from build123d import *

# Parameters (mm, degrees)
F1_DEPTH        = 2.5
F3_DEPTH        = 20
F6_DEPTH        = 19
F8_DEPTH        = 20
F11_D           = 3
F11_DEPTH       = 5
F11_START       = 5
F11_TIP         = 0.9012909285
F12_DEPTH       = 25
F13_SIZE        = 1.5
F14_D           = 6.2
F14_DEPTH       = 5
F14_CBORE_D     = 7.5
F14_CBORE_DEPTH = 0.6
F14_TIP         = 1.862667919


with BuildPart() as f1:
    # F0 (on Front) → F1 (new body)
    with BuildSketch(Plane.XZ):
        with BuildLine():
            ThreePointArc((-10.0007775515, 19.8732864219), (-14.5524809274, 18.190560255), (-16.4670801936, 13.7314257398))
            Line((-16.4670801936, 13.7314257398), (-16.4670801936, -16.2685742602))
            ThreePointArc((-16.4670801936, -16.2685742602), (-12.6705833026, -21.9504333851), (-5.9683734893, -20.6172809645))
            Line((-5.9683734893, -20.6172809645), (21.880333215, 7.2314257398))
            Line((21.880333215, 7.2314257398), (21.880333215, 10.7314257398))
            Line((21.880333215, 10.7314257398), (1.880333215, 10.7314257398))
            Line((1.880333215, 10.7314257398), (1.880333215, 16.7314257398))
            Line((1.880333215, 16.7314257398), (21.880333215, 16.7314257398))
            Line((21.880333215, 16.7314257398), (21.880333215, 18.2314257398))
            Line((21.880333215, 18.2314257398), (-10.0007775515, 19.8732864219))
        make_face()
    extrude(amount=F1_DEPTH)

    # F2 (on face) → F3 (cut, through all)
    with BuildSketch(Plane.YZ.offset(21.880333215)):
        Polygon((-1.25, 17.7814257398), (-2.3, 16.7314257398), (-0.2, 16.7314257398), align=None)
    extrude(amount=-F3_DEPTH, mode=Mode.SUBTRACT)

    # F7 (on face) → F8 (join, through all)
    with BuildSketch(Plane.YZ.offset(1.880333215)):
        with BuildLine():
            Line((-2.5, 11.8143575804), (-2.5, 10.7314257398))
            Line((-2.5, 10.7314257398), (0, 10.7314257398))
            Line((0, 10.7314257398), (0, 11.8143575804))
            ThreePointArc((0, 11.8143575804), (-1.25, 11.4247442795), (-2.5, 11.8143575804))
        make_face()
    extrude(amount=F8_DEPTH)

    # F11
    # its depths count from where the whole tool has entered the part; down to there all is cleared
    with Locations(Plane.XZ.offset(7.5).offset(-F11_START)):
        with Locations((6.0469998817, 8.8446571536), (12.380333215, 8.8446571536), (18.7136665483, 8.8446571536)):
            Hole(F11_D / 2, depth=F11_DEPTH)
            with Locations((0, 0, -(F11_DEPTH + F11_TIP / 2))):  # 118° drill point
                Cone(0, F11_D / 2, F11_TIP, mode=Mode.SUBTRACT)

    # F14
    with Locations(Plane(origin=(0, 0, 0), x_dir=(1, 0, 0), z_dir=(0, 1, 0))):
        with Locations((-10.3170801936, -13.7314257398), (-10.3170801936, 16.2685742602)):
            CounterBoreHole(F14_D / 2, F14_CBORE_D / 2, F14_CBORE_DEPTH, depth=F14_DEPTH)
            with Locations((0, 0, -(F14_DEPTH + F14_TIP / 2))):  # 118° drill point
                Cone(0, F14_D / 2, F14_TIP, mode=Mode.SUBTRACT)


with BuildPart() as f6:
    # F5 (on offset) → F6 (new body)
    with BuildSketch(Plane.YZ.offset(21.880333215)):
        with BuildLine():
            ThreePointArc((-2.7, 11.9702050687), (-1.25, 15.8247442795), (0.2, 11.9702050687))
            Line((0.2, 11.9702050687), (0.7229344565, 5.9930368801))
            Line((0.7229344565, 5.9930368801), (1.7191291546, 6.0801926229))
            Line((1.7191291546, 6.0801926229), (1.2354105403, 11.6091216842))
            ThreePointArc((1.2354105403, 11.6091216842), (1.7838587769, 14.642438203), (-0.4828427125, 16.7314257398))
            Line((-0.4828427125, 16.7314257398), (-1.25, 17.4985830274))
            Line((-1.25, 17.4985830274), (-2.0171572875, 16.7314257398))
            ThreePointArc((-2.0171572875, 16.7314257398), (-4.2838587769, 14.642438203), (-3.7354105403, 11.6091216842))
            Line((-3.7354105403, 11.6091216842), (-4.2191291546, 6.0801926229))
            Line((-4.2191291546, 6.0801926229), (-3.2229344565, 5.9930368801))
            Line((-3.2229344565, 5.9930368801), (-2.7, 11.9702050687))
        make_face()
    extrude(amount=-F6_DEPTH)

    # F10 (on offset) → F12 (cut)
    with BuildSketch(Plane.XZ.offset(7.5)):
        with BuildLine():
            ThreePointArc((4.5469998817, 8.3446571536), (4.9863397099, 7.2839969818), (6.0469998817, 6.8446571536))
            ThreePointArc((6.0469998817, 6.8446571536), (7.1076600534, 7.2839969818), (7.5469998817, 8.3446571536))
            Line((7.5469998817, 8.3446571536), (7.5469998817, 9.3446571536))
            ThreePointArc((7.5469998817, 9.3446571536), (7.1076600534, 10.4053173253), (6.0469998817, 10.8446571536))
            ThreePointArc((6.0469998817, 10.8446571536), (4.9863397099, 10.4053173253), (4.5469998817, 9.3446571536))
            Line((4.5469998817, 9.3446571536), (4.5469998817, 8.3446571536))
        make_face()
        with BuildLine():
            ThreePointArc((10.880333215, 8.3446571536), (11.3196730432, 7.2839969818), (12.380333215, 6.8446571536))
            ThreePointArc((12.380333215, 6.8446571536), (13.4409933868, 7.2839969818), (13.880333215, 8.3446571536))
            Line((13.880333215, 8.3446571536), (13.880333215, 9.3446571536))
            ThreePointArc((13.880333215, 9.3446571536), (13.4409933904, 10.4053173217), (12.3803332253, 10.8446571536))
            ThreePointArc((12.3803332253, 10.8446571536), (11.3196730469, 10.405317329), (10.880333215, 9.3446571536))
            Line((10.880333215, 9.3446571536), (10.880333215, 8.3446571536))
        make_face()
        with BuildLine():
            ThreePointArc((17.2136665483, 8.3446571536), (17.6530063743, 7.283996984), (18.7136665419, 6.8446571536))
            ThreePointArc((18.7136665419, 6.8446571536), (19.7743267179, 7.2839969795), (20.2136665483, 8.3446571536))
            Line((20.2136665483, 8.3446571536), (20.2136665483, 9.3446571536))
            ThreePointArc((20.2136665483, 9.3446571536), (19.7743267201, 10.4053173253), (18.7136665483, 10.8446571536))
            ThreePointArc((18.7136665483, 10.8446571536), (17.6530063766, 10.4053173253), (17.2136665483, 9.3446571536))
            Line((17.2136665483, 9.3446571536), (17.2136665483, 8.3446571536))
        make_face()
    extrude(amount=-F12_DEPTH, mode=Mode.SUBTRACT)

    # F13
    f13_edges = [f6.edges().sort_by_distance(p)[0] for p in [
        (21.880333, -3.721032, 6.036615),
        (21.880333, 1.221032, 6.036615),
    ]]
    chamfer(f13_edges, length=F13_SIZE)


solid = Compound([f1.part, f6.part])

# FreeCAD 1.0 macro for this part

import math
import FreeCAD as App
import Part
import Sketcher

V = App.Vector
Q = App.Units.Quantity


def edges_at(feature, points):
    """Names of the edges that pass closest to the given points."""
    edges = feature.Shape.Edges
    near = lambda p: min(range(len(edges)), key=lambda i: edges[i].distToShape(Part.Vertex(*p))[0])
    return sorted({f"Edge{near(p) + 1}" for p in points})

doc = App.newDocument("Part")
params = doc.addObject("Spreadsheet::Sheet", "Params")
for row, (alias, value) in enumerate([
    ("sketch1_width", "20 mm"),
    ("sketch1_height", "30 mm"),
    ("sketch1_height2", "6 mm"),
    ("sketch1_radius", "6.15 mm"),
    ("sketch1_height3", "3.5 mm"),
    ("pad1_length", "2.5 mm"),
    ("sketch2_width", "2.1 mm"),
    ("pocket1_length", "20 mm"),
    ("sketch3_radius", "2.2 mm"),
    ("sketch3_width", "2.5 mm"),
    ("pad2_length", "20 mm"),
    ("sketch4_diameter", "3 mm"),
    ("hole_diameter", "3 mm"),
    ("hole_depth", "5 mm"),
    ("sketch5_diameter", "6.2 mm"),
    ("hole2_diameter", "6.2 mm"),
    ("hole2_depth", "5 mm"),
    ("hole2_cbore_diameter", "7.5 mm"),
    ("hole2_cbore_depth", "0.6 mm"),
    ("sketch6_radius", "2.2 mm"),
    ("sketch6_radius2", "3.2 mm"),
    ("sketch6_length", "6 mm"),
    ("sketch6_length2", "1 mm"),
    ("pad3_length", "19 mm"),
    ("sketch7_radius", "1.5 mm"),
    ("sketch7_height", "1 mm"),
    ("pocket2_length", "25 mm"),
    ("chamfer_size", "1.5 mm"),
], start=1):
    params.set(f"A{row}", alias)
    params.set(f"B{row}", "=" + value)
    params.setAlias(f"B{row}", alias)

body = doc.addObject("PartDesign::Body", "Body")

# Sketch on XZ plane
sketch1 = body.newObject("Sketcher::SketchObject", "Sketch")
sketch1.AttachmentSupport = (doc.getObject("XZ_Plane"), [""])
sketch1.MapMode = "FlatFace"
sketch1.addGeometry(Part.ArcOfCircle(Part.Circle(V(-10.31708, 13.731426, 0), V(0, 0, 1), 6.15), math.radians(87.051902), math.radians(180)), False)
sketch1.addGeometry(Part.LineSegment(V(-16.46708, 13.731426, 0), V(-16.46708, -16.268574, 0)), False)
sketch1.addGeometry(Part.ArcOfCircle(Part.Circle(V(-10.31708, -16.268574, 0), V(0, 0, 1), 6.15), math.radians(180), math.radians(315)), False)
sketch1.addGeometry(Part.LineSegment(V(-5.968373, -20.617281, 0), V(21.880333, 7.231426, 0)), False)
sketch1.addGeometry(Part.LineSegment(V(21.880333, 7.231426, 0), V(21.880333, 10.731426, 0)), False)
sketch1.addGeometry(Part.LineSegment(V(21.880333, 10.731426, 0), V(1.880333, 10.731426, 0)), False)
sketch1.addGeometry(Part.LineSegment(V(1.880333, 10.731426, 0), V(1.880333, 16.731426, 0)), False)
sketch1.addGeometry(Part.LineSegment(V(1.880333, 16.731426, 0), V(21.880333, 16.731426, 0)), False)
sketch1.addGeometry(Part.LineSegment(V(21.880333, 16.731426, 0), V(21.880333, 18.231426, 0)), False)
sketch1.addGeometry(Part.LineSegment(V(21.880333, 18.231426, 0), V(-10.000778, 19.873286, 0)), False)
sketch1.addConstraint(Sketcher.Constraint("Tangent", 0, 2, 1, 1))
sketch1.addConstraint(Sketcher.Constraint("Tangent", 1, 2, 2, 1))
sketch1.addConstraint(Sketcher.Constraint("Tangent", 2, 2, 3, 1))
sketch1.addConstraint(Sketcher.Constraint("Coincident", 3, 2, 4, 1))
sketch1.addConstraint(Sketcher.Constraint("Coincident", 4, 2, 5, 1))
sketch1.addConstraint(Sketcher.Constraint("Coincident", 5, 2, 6, 1))
sketch1.addConstraint(Sketcher.Constraint("Coincident", 6, 2, 7, 1))
sketch1.addConstraint(Sketcher.Constraint("Coincident", 7, 2, 8, 1))
sketch1.addConstraint(Sketcher.Constraint("Coincident", 8, 2, 9, 1))
sketch1.addConstraint(Sketcher.Constraint("Tangent", 9, 2, 0, 1))
sketch1.addConstraint(Sketcher.Constraint("Vertical", 1))
sketch1.addConstraint(Sketcher.Constraint("Vertical", 4))
sketch1.addConstraint(Sketcher.Constraint("Horizontal", 5))
sketch1.addConstraint(Sketcher.Constraint("Vertical", 6))
sketch1.addConstraint(Sketcher.Constraint("Horizontal", 7))
sketch1.addConstraint(Sketcher.Constraint("Vertical", 8))
sketch1.addConstraint(Sketcher.Constraint("Equal", 0, 2))
sketch1.addConstraint(Sketcher.Constraint("Vertical", 4, 2, 7, 2))
sketch1.addConstraint(Sketcher.Constraint("DistanceX", 5, 2, 5, 1, Q("20 mm")))
sketch1.addConstraint(Sketcher.Constraint("DistanceY", 1, 2, 1, 1, Q("30 mm")))
sketch1.addConstraint(Sketcher.Constraint("DistanceY", 6, 1, 6, 2, Q("6 mm")))
sketch1.addConstraint(Sketcher.Constraint("Angle", 3, Q("45 deg")))
sketch1.addConstraint(Sketcher.Constraint("Radius", 0, Q("6.15 mm")))
sketch1.addConstraint(Sketcher.Constraint("DistanceY", 4, 1, 4, 2, Q("3.5 mm")))
sketch1.addConstraint(Sketcher.Constraint("DistanceY", 8, 1, 8, 2, Q("1.5 mm")))
sketch1.addConstraint(Sketcher.Constraint("DistanceY", 4, 2, 0, 3, Q("3 mm")))
sketch1.addConstraint(Sketcher.Constraint("DistanceX", 0, 3, -1, 1, Q("10.31708 mm")))
sketch1.addConstraint(Sketcher.Constraint("DistanceY", 2, 2, -1, 1, Q("20.617281 mm")))
sketch1.setExpression("Constraints[18]", "Params.sketch1_width")
sketch1.setExpression("Constraints[19]", "Params.sketch1_height")
sketch1.setExpression("Constraints[20]", "Params.sketch1_height2")
sketch1.setExpression("Constraints[22]", "Params.sketch1_radius")
sketch1.setExpression("Constraints[23]", "Params.sketch1_height3")
pad1 = body.newObject("PartDesign::Pad", "Pad")
pad1.Profile = sketch1
pad1.setExpression("Length", "Params.pad1_length")

# Sketch on YZ plane
sketch2 = body.newObject("Sketcher::SketchObject", "Sketch001")
sketch2.AttachmentSupport = (doc.getObject("YZ_Plane"), [""])
sketch2.MapMode = "FlatFace"
sketch2.AttachmentOffset = App.Placement(V(0, 0, 21.880333), App.Rotation())
sketch2.addGeometry(Part.LineSegment(V(-1.25, 17.781426, 0), V(-2.3, 16.731426, 0)), False)
sketch2.addGeometry(Part.LineSegment(V(-2.3, 16.731426, 0), V(-0.2, 16.731426, 0)), False)
sketch2.addGeometry(Part.LineSegment(V(-0.2, 16.731426, 0), V(-1.25, 17.781426, 0)), False)
sketch2.addConstraint(Sketcher.Constraint("Coincident", 0, 2, 1, 1))
sketch2.addConstraint(Sketcher.Constraint("Coincident", 1, 2, 2, 1))
sketch2.addConstraint(Sketcher.Constraint("Coincident", 2, 2, 0, 1))
sketch2.addConstraint(Sketcher.Constraint("Horizontal", 1))
sketch2.addConstraint(Sketcher.Constraint("Perpendicular", 0, 2))
sketch2.addConstraint(Sketcher.Constraint("Equal", 0, 2))
sketch2.addConstraint(Sketcher.Constraint("DistanceX", 1, 1, 1, 2, Q("2.1 mm")))
sketch2.addConstraint(Sketcher.Constraint("DistanceX", 0, 2, -1, 1, Q("2.3 mm")))
sketch2.addConstraint(Sketcher.Constraint("DistanceY", -1, 1, 0, 2, Q("16.731426 mm")))
sketch2.setExpression("Constraints[6]", "Params.sketch2_width")
pocket1 = body.newObject("PartDesign::Pocket", "Pocket")
pocket1.Profile = sketch2
pocket1.setExpression("Length", "Params.pocket1_length")

# Sketch on YZ plane
sketch3 = body.newObject("Sketcher::SketchObject", "Sketch002")
sketch3.AttachmentSupport = (doc.getObject("YZ_Plane"), [""])
sketch3.MapMode = "FlatFace"
sketch3.AttachmentOffset = App.Placement(V(0, 0, 1.880333), App.Rotation())
sketch3.addGeometry(Part.LineSegment(V(-2.5, 11.814358, 0), V(-2.5, 10.731426, 0)), False)
sketch3.addGeometry(Part.LineSegment(V(-2.5, 10.731426, 0), V(0, 10.731426, 0)), False)
sketch3.addGeometry(Part.LineSegment(V(0, 10.731426, 0), V(0, 11.814358, 0)), False)
sketch3.addGeometry(Part.ArcOfCircle(Part.Circle(V(-1.25, 13.624744, 0), V(0, 0, 1), 2.2), math.radians(-124.623535), math.radians(-55.376465)), False)
sketch3.addConstraint(Sketcher.Constraint("Coincident", 0, 2, 1, 1))
sketch3.addConstraint(Sketcher.Constraint("Coincident", 1, 2, 2, 1))
sketch3.addConstraint(Sketcher.Constraint("Coincident", 2, 2, 3, 2))
sketch3.addConstraint(Sketcher.Constraint("Coincident", 3, 1, 0, 1))
sketch3.addConstraint(Sketcher.Constraint("Vertical", 0))
sketch3.addConstraint(Sketcher.Constraint("Horizontal", 1))
sketch3.addConstraint(Sketcher.Constraint("Vertical", 2))
sketch3.addConstraint(Sketcher.Constraint("PointOnObject", 1, 2, -2))
sketch3.addConstraint(Sketcher.Constraint("Horizontal", 2, 2, 3, 1))
sketch3.addConstraint(Sketcher.Constraint("Radius", 3, Q("2.2 mm")))
sketch3.addConstraint(Sketcher.Constraint("DistanceX", 1, 1, 1, 2, Q("2.5 mm")))
sketch3.addConstraint(Sketcher.Constraint("DistanceY", 0, 2, 0, 1, Q("1.082932 mm")))
sketch3.addConstraint(Sketcher.Constraint("DistanceY", -1, 1, 3, 3, Q("13.624744 mm")))
sketch3.setExpression("Constraints[9]", "Params.sketch3_radius")
sketch3.setExpression("Constraints[10]", "Params.sketch3_width")
pad2 = body.newObject("PartDesign::Pad", "Pad001")
pad2.Profile = sketch3
pad2.setExpression("Length", "Params.pad2_length")

# Sketch on XZ plane
sketch4 = body.newObject("Sketcher::SketchObject", "Sketch003")
sketch4.AttachmentSupport = (doc.getObject("XZ_Plane"), [""])
sketch4.MapMode = "FlatFace"
sketch4.AttachmentOffset = App.Placement(V(0, 0, 2.5), App.Rotation())
sketch4.addGeometry(Part.Circle(V(6.047, 8.844657, 0), V(0, 0, 1), 1.5), False)
sketch4.addGeometry(Part.Circle(V(12.380333, 8.844657, 0), V(0, 0, 1), 1.5), False)
sketch4.addGeometry(Part.Circle(V(18.713667, 8.844657, 0), V(0, 0, 1), 1.5), False)
sketch4.addConstraint(Sketcher.Constraint("Equal", 0, 1))
sketch4.addConstraint(Sketcher.Constraint("Equal", 1, 2))
sketch4.addConstraint(Sketcher.Constraint("Horizontal", 0, 3, 1, 3))
sketch4.addConstraint(Sketcher.Constraint("Horizontal", 1, 3, 2, 3))
sketch4.addConstraint(Sketcher.Constraint("Diameter", 0, Q("3 mm")))
sketch4.addConstraint(Sketcher.Constraint("DistanceX", -1, 1, 0, 3, Q("6.047 mm")))
sketch4.addConstraint(Sketcher.Constraint("DistanceY", -1, 1, 0, 3, Q("8.844657 mm")))
sketch4.addConstraint(Sketcher.Constraint("DistanceX", -1, 1, 1, 3, Q("12.380333 mm")))
sketch4.addConstraint(Sketcher.Constraint("DistanceX", -1, 1, 2, 3, Q("18.713667 mm")))
sketch4.setExpression("Constraints[4]", "Params.sketch4_diameter")
doc.recompute()
hole = body.newObject("PartDesign::Hole", "Hole")
hole.Profile = sketch4
hole.ThreadType = "None"
hole.setExpression("Diameter", "Params.hole_diameter")
hole.DepthType = "Dimension"
hole.setExpression("Depth", "Params.hole_depth")
hole.DrillPoint = "Angled"
hole.DrillPointAngle = 118

# Sketch on XZ plane
sketch5 = body.newObject("Sketcher::SketchObject", "Sketch004")
sketch5.AttachmentSupport = (doc.getObject("XZ_Plane"), [""])
sketch5.MapMode = "FlatFace"
sketch5.addGeometry(Part.Circle(V(-10.31708, 13.731426, 0), V(0, 0, 1), 3.1), False)
sketch5.addGeometry(Part.Circle(V(-10.31708, -16.268574, 0), V(0, 0, 1), 3.1), False)
sketch5.addConstraint(Sketcher.Constraint("Equal", 0, 1))
sketch5.addConstraint(Sketcher.Constraint("Vertical", 0, 3, 1, 3))
sketch5.addConstraint(Sketcher.Constraint("Diameter", 0, Q("6.2 mm")))
sketch5.addConstraint(Sketcher.Constraint("DistanceY", 1, 3, 0, 3, Q("30 mm")))
sketch5.addConstraint(Sketcher.Constraint("DistanceX", 0, 3, -1, 1, Q("10.31708 mm")))
sketch5.addConstraint(Sketcher.Constraint("DistanceY", -1, 1, 0, 3, Q("13.731426 mm")))
sketch5.setExpression("Constraints[2]", "Params.sketch5_diameter")
doc.recompute()
hole2 = body.newObject("PartDesign::Hole", "Hole001")
hole2.Profile = sketch5
hole2.ThreadType = "None"
hole2.setExpression("Diameter", "Params.hole2_diameter")
hole2.DepthType = "Dimension"
hole2.setExpression("Depth", "Params.hole2_depth")
hole2.DrillPoint = "Angled"
hole2.DrillPointAngle = 118
hole2.HoleCutType = "Counterbore"
hole2.setExpression("HoleCutDiameter", "Params.hole2_cbore_diameter")
hole2.setExpression("HoleCutDepth", "Params.hole2_cbore_depth")
hole2.Reversed = True
body2 = doc.addObject("PartDesign::Body", "Body001")

# Sketch on YZ plane
sketch6 = body2.newObject("Sketcher::SketchObject", "Sketch005")
sketch6.AttachmentSupport = (doc.getObject("YZ_Plane001"), [""])
sketch6.MapMode = "FlatFace"
sketch6.AttachmentOffset = App.Placement(V(0, 0, 21.880333), App.Rotation())
sketch6.addGeometry(Part.ArcOfCircle(Part.Circle(V(-1.25, 13.624744, 0), V(0, 0, 1), 2.2), math.radians(-48.769423), math.radians(228.769423)), False)
sketch6.addGeometry(Part.LineSegment(V(0.2, 11.970205, 0), V(0.722934, 5.993037, 0)), False)
sketch6.addGeometry(Part.LineSegment(V(0.722934, 5.993037, 0), V(1.719129, 6.080193, 0)), False)
sketch6.addGeometry(Part.LineSegment(V(1.719129, 6.080193, 0), V(1.235411, 11.609122, 0)), False)
sketch6.addGeometry(Part.ArcOfCircle(Part.Circle(V(-1.25, 13.624744, 0), V(0, 0, 1), 3.2), math.radians(-39.041422), math.radians(76.129002)), False)
sketch6.addGeometry(Part.LineSegment(V(-0.482843, 16.731426, 0), V(-1.25, 17.498583, 0)), False)
sketch6.addGeometry(Part.LineSegment(V(-1.25, 17.498583, 0), V(-2.017157, 16.731426, 0)), False)
sketch6.addGeometry(Part.ArcOfCircle(Part.Circle(V(-1.25, 13.624744, 0), V(0, 0, 1), 3.2), math.radians(103.870998), math.radians(219.041422)), False)
sketch6.addGeometry(Part.LineSegment(V(-3.735411, 11.609122, 0), V(-4.219129, 6.080193, 0)), False)
sketch6.addGeometry(Part.LineSegment(V(-4.219129, 6.080193, 0), V(-3.222934, 5.993037, 0)), False)
sketch6.addGeometry(Part.LineSegment(V(-3.222934, 5.993037, 0), V(-2.7, 11.970205, 0)), False)
sketch6.addConstraint(Sketcher.Constraint("Coincident", 0, 1, 1, 1))
sketch6.addConstraint(Sketcher.Constraint("Coincident", 1, 2, 2, 1))
sketch6.addConstraint(Sketcher.Constraint("Coincident", 2, 2, 3, 1))
sketch6.addConstraint(Sketcher.Constraint("Coincident", 3, 2, 4, 1))
sketch6.addConstraint(Sketcher.Constraint("Coincident", 4, 2, 5, 1))
sketch6.addConstraint(Sketcher.Constraint("Coincident", 5, 2, 6, 1))
sketch6.addConstraint(Sketcher.Constraint("Coincident", 6, 2, 7, 1))
sketch6.addConstraint(Sketcher.Constraint("Coincident", 7, 2, 8, 1))
sketch6.addConstraint(Sketcher.Constraint("Coincident", 8, 2, 9, 1))
sketch6.addConstraint(Sketcher.Constraint("Coincident", 9, 2, 10, 1))
sketch6.addConstraint(Sketcher.Constraint("Coincident", 10, 2, 0, 2))
sketch6.addConstraint(Sketcher.Constraint("Coincident", 4, 3, 0, 3))
sketch6.addConstraint(Sketcher.Constraint("Coincident", 7, 3, 0, 3))
sketch6.addConstraint(Sketcher.Constraint("Equal", 4, 7))
sketch6.addConstraint(Sketcher.Constraint("Perpendicular", 1, 2))
sketch6.addConstraint(Sketcher.Constraint("Perpendicular", 2, 3))
sketch6.addConstraint(Sketcher.Constraint("Perpendicular", 5, 6))
sketch6.addConstraint(Sketcher.Constraint("Perpendicular", 8, 9))
sketch6.addConstraint(Sketcher.Constraint("Perpendicular", 9, 10))
sketch6.addConstraint(Sketcher.Constraint("Horizontal", 4, 2, 6, 2))
sketch6.addConstraint(Sketcher.Constraint("Horizontal", 3, 2, 7, 2))
sketch6.addConstraint(Sketcher.Constraint("Horizontal", 2, 2, 8, 2))
sketch6.addConstraint(Sketcher.Constraint("Horizontal", 1, 2, 9, 2))
sketch6.addConstraint(Sketcher.Constraint("Horizontal", 0, 1, 10, 2))
sketch6.addConstraint(Sketcher.Constraint("Vertical", 7, 3, 5, 2))
sketch6.addConstraint(Sketcher.Constraint("Radius", 0, Q("2.2 mm")))
sketch6.addConstraint(Sketcher.Constraint("Radius", 4, Q("3.2 mm")))
sketch6.addConstraint(Sketcher.Constraint("Angle", 1, Q("-85 deg")))
sketch6.addConstraint(Sketcher.Constraint("Distance", 1, Q("6 mm")))
sketch6.addConstraint(Sketcher.Constraint("Distance", 2, Q("1 mm")))
sketch6.addConstraint(Sketcher.Constraint("DistanceX", -1, 1, 0, 1, Q("0.2 mm")))
sketch6.addConstraint(Sketcher.Constraint("DistanceX", 10, 2, -1, 1, Q("2.7 mm")))
sketch6.addConstraint(Sketcher.Constraint("DistanceY", -1, 1, 3, 2, Q("11.609122 mm")))
sketch6.addConstraint(Sketcher.Constraint("DistanceY", 0, 3, 4, 2, Q("3.106681 mm")))
sketch6.setExpression("Constraints[25]", "Params.sketch6_radius")
sketch6.setExpression("Constraints[26]", "Params.sketch6_radius2")
sketch6.setExpression("Constraints[28]", "Params.sketch6_length")
sketch6.setExpression("Constraints[29]", "Params.sketch6_length2")
pad3 = body2.newObject("PartDesign::Pad", "Pad002")
pad3.Profile = sketch6
pad3.setExpression("Length", "Params.pad3_length")
pad3.Reversed = True

# Sketch on XZ plane
sketch7 = body2.newObject("Sketcher::SketchObject", "Sketch006")
sketch7.AttachmentSupport = (doc.getObject("XZ_Plane001"), [""])
sketch7.MapMode = "FlatFace"
sketch7.AttachmentOffset = App.Placement(V(0, 0, 7.5), App.Rotation())
sketch7.addGeometry(Part.ArcOfCircle(Part.Circle(V(6.047, 8.344657, 0), V(0, 0, 1), 1.5), math.radians(180), math.radians(270)), False)
sketch7.addGeometry(Part.ArcOfCircle(Part.Circle(V(6.047, 8.344657, 0), V(0, 0, 1), 1.5), math.radians(-90), math.radians(0)), False)
sketch7.addGeometry(Part.LineSegment(V(7.547, 8.344657, 0), V(7.547, 9.344657, 0)), False)
sketch7.addGeometry(Part.ArcOfCircle(Part.Circle(V(6.047, 9.344657, 0), V(0, 0, 1), 1.5), math.radians(0), math.radians(90)), False)
sketch7.addGeometry(Part.ArcOfCircle(Part.Circle(V(6.047, 9.344657, 0), V(0, 0, 1), 1.5), math.radians(90), math.radians(180)), False)
sketch7.addGeometry(Part.LineSegment(V(4.547, 9.344657, 0), V(4.547, 8.344657, 0)), False)
sketch7.addGeometry(Part.ArcOfCircle(Part.Circle(V(12.380333, 8.344657, 0), V(0, 0, 1), 1.5), math.radians(180), math.radians(270)), False)
sketch7.addGeometry(Part.ArcOfCircle(Part.Circle(V(12.380333, 8.344657, 0), V(0, 0, 1), 1.5), math.radians(-90), math.radians(0)), False)
sketch7.addGeometry(Part.LineSegment(V(13.880333, 8.344657, 0), V(13.880333, 9.344657, 0)), False)
sketch7.addGeometry(Part.ArcOfCircle(Part.Circle(V(12.380333, 9.344657, 0), V(0, 0, 1), 1.5), math.radians(0), math.radians(90)), False)
sketch7.addGeometry(Part.ArcOfCircle(Part.Circle(V(12.380333, 9.344657, 0), V(0, 0, 1), 1.5), math.radians(90), math.radians(180)), False)
sketch7.addGeometry(Part.LineSegment(V(10.880333, 9.344657, 0), V(10.880333, 8.344657, 0)), False)
sketch7.addGeometry(Part.ArcOfCircle(Part.Circle(V(18.713667, 8.344657, 0), V(0, 0, 1), 1.5), math.radians(180), math.radians(270)), False)
sketch7.addGeometry(Part.ArcOfCircle(Part.Circle(V(18.713667, 8.344657, 0), V(0, 0, 1), 1.5), math.radians(-90), math.radians(0)), False)
sketch7.addGeometry(Part.LineSegment(V(20.213667, 8.344657, 0), V(20.213667, 9.344657, 0)), False)
sketch7.addGeometry(Part.ArcOfCircle(Part.Circle(V(18.713667, 9.344657, 0), V(0, 0, 1), 1.5), math.radians(0), math.radians(90)), False)
sketch7.addGeometry(Part.ArcOfCircle(Part.Circle(V(18.713667, 9.344657, 0), V(0, 0, 1), 1.5), math.radians(90), math.radians(180)), False)
sketch7.addGeometry(Part.LineSegment(V(17.213667, 9.344657, 0), V(17.213667, 8.344657, 0)), False)
sketch7.addConstraint(Sketcher.Constraint("Tangent", 0, 2, 1, 1))
sketch7.addConstraint(Sketcher.Constraint("Tangent", 1, 2, 2, 1))
sketch7.addConstraint(Sketcher.Constraint("Tangent", 2, 2, 3, 1))
sketch7.addConstraint(Sketcher.Constraint("Tangent", 3, 2, 4, 1))
sketch7.addConstraint(Sketcher.Constraint("Tangent", 4, 2, 5, 1))
sketch7.addConstraint(Sketcher.Constraint("Tangent", 5, 2, 0, 1))
sketch7.addConstraint(Sketcher.Constraint("Tangent", 6, 2, 7, 1))
sketch7.addConstraint(Sketcher.Constraint("Tangent", 7, 2, 8, 1))
sketch7.addConstraint(Sketcher.Constraint("Tangent", 8, 2, 9, 1))
sketch7.addConstraint(Sketcher.Constraint("Tangent", 9, 2, 10, 1))
sketch7.addConstraint(Sketcher.Constraint("Tangent", 10, 2, 11, 1))
sketch7.addConstraint(Sketcher.Constraint("Tangent", 11, 2, 6, 1))
sketch7.addConstraint(Sketcher.Constraint("Tangent", 12, 2, 13, 1))
sketch7.addConstraint(Sketcher.Constraint("Tangent", 13, 2, 14, 1))
sketch7.addConstraint(Sketcher.Constraint("Tangent", 14, 2, 15, 1))
sketch7.addConstraint(Sketcher.Constraint("Tangent", 15, 2, 16, 1))
sketch7.addConstraint(Sketcher.Constraint("Tangent", 16, 2, 17, 1))
sketch7.addConstraint(Sketcher.Constraint("Tangent", 17, 2, 12, 1))
sketch7.addConstraint(Sketcher.Constraint("Vertical", 2))
sketch7.addConstraint(Sketcher.Constraint("Vertical", 5))
sketch7.addConstraint(Sketcher.Constraint("Vertical", 8))
sketch7.addConstraint(Sketcher.Constraint("Vertical", 11))
sketch7.addConstraint(Sketcher.Constraint("Vertical", 14))
sketch7.addConstraint(Sketcher.Constraint("Vertical", 17))
sketch7.addConstraint(Sketcher.Constraint("Equal", 0, 1))
sketch7.addConstraint(Sketcher.Constraint("Equal", 1, 3))
sketch7.addConstraint(Sketcher.Constraint("Equal", 4, 6))
sketch7.addConstraint(Sketcher.Constraint("Equal", 6, 7))
sketch7.addConstraint(Sketcher.Constraint("Equal", 7, 9))
sketch7.addConstraint(Sketcher.Constraint("Equal", 10, 12))
sketch7.addConstraint(Sketcher.Constraint("Equal", 12, 13))
sketch7.addConstraint(Sketcher.Constraint("Equal", 13, 15))
sketch7.addConstraint(Sketcher.Constraint("Horizontal", 1, 3, 6, 3))
sketch7.addConstraint(Sketcher.Constraint("Horizontal", 4, 3, 9, 3))
sketch7.addConstraint(Sketcher.Constraint("Horizontal", 7, 3, 12, 3))
sketch7.addConstraint(Sketcher.Constraint("Horizontal", 10, 3, 15, 3))
sketch7.addConstraint(Sketcher.Constraint("Vertical", 4, 3, 0, 2))
sketch7.addConstraint(Sketcher.Constraint("Vertical", 0, 2, 3, 2))
sketch7.addConstraint(Sketcher.Constraint("Vertical", 10, 3, 6, 2))
sketch7.addConstraint(Sketcher.Constraint("Vertical", 6, 2, 9, 2))
sketch7.addConstraint(Sketcher.Constraint("Vertical", 16, 3, 12, 2))
sketch7.addConstraint(Sketcher.Constraint("Vertical", 12, 2, 15, 2))
sketch7.addConstraint(Sketcher.Constraint("Radius", 0, Q("1.5 mm")))
sketch7.addConstraint(Sketcher.Constraint("DistanceY", 2, 1, 2, 2, Q("1 mm")))
sketch7.addConstraint(Sketcher.Constraint("DistanceX", -1, 1, 0, 3, Q("6.047 mm")))
sketch7.addConstraint(Sketcher.Constraint("DistanceY", -1, 1, 0, 3, Q("8.344657 mm")))
sketch7.addConstraint(Sketcher.Constraint("DistanceX", -1, 1, 6, 3, Q("12.380333 mm")))
sketch7.addConstraint(Sketcher.Constraint("DistanceX", -1, 1, 12, 3, Q("18.713667 mm")))
sketch7.setExpression("Constraints[42]", "Params.sketch7_radius")
sketch7.setExpression("Constraints[43]", "Params.sketch7_height")
pocket2 = body2.newObject("PartDesign::Pocket", "Pocket001")
pocket2.Profile = sketch7
pocket2.setExpression("Length", "Params.pocket2_length")
doc.recompute()

chamfer = body2.newObject("PartDesign::Chamfer", "Chamfer")
chamfer.Base = (pocket2, edges_at(pocket2, [(21.88, -3.721, 6.037), (21.88, 1.221, 6.037)]))
chamfer.setExpression("Size", "Params.chamfer_size")

doc.recompute()
